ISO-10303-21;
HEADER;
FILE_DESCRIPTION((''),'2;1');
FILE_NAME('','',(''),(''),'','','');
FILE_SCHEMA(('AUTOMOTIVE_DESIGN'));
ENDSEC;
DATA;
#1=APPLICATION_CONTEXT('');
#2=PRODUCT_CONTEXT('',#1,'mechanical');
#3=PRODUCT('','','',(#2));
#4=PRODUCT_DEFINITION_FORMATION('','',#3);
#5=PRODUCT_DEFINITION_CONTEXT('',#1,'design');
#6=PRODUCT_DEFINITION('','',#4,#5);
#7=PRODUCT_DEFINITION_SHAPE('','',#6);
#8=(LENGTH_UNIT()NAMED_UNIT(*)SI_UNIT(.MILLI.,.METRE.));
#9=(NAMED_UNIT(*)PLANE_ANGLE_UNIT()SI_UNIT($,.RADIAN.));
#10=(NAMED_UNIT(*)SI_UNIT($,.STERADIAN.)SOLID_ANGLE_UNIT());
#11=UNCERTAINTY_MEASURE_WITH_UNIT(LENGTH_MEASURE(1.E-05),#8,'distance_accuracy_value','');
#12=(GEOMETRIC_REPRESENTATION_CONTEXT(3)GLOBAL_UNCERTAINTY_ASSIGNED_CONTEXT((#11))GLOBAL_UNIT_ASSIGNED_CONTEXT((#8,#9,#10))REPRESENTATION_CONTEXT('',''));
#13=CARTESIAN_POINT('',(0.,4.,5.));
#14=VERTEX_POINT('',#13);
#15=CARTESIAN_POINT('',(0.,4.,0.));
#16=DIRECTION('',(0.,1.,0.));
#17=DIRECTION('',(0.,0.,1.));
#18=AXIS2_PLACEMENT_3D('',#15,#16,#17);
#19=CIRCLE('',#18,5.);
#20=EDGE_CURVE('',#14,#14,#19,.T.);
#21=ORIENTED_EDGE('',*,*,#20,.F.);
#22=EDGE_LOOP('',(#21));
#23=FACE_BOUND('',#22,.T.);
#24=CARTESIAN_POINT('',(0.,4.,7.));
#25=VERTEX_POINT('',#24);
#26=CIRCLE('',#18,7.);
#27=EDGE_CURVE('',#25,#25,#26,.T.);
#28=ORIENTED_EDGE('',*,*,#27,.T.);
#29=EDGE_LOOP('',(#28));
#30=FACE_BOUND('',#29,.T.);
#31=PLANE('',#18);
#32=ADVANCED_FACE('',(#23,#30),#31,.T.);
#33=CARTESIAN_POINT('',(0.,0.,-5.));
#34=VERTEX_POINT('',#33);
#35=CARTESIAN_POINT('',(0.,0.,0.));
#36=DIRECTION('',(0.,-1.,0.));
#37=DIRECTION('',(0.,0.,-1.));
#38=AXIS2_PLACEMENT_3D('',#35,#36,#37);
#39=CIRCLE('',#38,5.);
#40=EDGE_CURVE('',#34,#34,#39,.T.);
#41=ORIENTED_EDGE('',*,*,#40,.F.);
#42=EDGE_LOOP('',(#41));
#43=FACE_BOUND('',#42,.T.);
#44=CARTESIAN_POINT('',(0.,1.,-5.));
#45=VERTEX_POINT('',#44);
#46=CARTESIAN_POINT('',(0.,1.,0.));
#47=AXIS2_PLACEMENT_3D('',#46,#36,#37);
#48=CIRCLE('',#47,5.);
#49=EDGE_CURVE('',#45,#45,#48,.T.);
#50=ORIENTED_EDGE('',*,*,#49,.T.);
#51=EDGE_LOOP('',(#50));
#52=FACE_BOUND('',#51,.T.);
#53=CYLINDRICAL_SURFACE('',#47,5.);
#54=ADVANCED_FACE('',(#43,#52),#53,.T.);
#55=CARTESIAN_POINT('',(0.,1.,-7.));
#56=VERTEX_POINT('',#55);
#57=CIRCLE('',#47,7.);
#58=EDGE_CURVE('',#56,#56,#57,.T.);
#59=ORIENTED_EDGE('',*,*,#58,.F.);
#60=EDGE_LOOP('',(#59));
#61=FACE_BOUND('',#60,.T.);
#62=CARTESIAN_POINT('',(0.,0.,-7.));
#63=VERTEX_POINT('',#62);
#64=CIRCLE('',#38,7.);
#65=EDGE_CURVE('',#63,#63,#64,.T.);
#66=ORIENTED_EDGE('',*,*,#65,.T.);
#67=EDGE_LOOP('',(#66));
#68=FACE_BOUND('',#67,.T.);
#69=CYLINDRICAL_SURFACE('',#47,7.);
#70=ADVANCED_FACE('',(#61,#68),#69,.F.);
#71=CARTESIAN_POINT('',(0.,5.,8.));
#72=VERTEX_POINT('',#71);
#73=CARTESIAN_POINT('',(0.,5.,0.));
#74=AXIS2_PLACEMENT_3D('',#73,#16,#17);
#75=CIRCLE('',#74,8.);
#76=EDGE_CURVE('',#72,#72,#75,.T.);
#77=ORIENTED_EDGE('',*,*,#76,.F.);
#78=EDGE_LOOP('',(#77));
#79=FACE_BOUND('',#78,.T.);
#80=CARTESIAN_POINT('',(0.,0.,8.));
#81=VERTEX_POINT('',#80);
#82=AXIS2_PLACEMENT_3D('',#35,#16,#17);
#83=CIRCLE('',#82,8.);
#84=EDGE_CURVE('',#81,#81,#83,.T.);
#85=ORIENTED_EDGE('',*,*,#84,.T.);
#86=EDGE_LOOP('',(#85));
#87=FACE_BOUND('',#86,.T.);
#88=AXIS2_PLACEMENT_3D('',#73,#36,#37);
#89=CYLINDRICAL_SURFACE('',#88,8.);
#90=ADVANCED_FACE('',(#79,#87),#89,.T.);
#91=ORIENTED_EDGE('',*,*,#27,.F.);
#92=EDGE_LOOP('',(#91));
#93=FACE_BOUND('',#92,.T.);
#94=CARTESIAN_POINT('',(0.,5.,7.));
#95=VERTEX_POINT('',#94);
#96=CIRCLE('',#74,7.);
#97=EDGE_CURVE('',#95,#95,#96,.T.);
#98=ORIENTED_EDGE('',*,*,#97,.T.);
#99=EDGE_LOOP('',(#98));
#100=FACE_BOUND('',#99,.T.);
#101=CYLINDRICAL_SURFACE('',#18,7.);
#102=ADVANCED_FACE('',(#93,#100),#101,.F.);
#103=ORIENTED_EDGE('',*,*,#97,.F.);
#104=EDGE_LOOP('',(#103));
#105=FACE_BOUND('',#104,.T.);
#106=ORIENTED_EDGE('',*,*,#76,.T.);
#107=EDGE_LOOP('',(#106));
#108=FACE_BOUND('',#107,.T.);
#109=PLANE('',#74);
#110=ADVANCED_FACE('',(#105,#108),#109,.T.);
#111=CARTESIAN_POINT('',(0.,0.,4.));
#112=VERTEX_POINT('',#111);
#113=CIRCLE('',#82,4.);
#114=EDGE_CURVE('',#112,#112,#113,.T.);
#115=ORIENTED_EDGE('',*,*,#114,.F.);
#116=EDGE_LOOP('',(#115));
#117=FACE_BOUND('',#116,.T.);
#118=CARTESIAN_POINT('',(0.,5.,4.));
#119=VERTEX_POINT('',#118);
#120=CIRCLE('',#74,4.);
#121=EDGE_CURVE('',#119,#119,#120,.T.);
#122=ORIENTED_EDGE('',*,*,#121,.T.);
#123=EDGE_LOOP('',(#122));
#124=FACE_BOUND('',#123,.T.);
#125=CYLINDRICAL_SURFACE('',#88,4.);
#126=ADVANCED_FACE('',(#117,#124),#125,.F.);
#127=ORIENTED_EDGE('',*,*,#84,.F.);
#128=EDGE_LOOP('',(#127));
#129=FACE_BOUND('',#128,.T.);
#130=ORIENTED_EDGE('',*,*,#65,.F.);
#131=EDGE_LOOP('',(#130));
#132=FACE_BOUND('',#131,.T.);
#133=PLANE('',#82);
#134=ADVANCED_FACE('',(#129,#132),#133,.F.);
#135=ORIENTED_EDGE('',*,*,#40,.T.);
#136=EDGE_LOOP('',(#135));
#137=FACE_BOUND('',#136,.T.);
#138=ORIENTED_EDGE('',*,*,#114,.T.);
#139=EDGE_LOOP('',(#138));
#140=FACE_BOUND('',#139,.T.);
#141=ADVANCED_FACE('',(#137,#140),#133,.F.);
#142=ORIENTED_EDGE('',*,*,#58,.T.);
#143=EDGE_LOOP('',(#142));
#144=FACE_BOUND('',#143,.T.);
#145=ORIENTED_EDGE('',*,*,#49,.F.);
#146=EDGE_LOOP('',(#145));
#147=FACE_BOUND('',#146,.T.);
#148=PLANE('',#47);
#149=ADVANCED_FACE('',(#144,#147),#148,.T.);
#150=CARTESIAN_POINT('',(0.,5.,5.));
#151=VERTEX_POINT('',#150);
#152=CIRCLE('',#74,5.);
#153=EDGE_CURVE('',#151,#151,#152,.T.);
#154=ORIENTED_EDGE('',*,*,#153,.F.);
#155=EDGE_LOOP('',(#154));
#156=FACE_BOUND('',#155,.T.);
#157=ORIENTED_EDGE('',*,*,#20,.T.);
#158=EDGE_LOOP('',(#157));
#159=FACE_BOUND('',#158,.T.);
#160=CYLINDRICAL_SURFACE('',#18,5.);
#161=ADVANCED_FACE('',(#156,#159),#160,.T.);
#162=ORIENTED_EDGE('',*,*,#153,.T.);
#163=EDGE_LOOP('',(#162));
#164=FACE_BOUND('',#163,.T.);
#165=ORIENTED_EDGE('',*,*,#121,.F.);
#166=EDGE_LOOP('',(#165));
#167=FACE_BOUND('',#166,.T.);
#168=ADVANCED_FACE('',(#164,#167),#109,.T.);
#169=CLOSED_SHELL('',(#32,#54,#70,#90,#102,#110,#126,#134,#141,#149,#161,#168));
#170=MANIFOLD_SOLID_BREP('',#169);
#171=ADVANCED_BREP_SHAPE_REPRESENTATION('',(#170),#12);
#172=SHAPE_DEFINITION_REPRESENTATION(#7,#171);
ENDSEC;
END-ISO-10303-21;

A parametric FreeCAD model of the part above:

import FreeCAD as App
import Part
import Sketcher
Q = App.Units.Quantity

doc = App.newDocument("Part")
body = doc.addObject("PartDesign::Body", "Body")

# Sketch on XZ plane
sketch1 = body.newObject("Sketcher::SketchObject", "Sketch")
sketch1.AttachmentSupport = (doc.getObject("XZ_Plane"), [""])
sketch1.MapMode = "FlatFace"
sketch1.addGeometry([
    Part.Circle(App.Vector(0, 0, 0), App.Vector(0, 0, 1), 8),
    Part.Circle(App.Vector(0, 0, 0), App.Vector(0, 0, 1), 4),
], False)
sketch1.addConstraint([
    Sketcher.Constraint("Coincident", 0, 3, -1, 1),
    Sketcher.Constraint("Coincident", 1, 3, -1, 1),
    Sketcher.Constraint("Diameter", 0, Q("16 mm")),
    Sketcher.Constraint("Diameter", 1, Q("8 mm")),
])
pad1 = body.newObject("PartDesign::Pad", "Pad")
pad1.Profile = sketch1
pad1.Length = 5
pad1.Reversed = True

# Sketch on XZ plane
sketch2 = body.newObject("Sketcher::SketchObject", "Sketch001")
sketch2.AttachmentSupport = (doc.getObject("XZ_Plane"), [""])
sketch2.MapMode = "FlatFace"
sketch2.AttachmentOffset = App.Placement(App.Vector(0, 0, -5), App.Rotation())
sketch2.addGeometry([
    Part.Circle(App.Vector(0, 0, 0), App.Vector(0, 0, 1), 7),
    Part.Circle(App.Vector(0, 0, 0), App.Vector(0, 0, 1), 5),
], False)
sketch2.addConstraint([
    Sketcher.Constraint("Coincident", 0, 3, -1, 1),
    Sketcher.Constraint("Coincident", 1, 3, -1, 1),
    Sketcher.Constraint("Diameter", 0, Q("14 mm")),
    Sketcher.Constraint("Diameter", 1, Q("10 mm")),
])
pocket1 = body.newObject("PartDesign::Pocket", "Pocket")
pocket1.Profile = sketch2
pocket1.Length = 1
pocket1.Reversed = True

# Sketch on XZ plane
sketch3 = body.newObject("Sketcher::SketchObject", "Sketch002")
sketch3.AttachmentSupport = (doc.getObject("XZ_Plane"), [""])
sketch3.MapMode = "FlatFace"
sketch3.AttachmentOffset = App.Placement(App.Vector(0, 0, -1), App.Rotation())
sketch3.addGeometry([
    Part.Circle(App.Vector(0, 0, 0), App.Vector(0, 0, 1), 7),
    Part.Circle(App.Vector(0, 0, 0), App.Vector(0, 0, 1), 5),
], False)
sketch3.addConstraint([
    Sketcher.Constraint("Coincident", 0, 3, -1, 1),
    Sketcher.Constraint("Coincident", 1, 3, -1, 1),
    Sketcher.Constraint("Diameter", 0, Q("14 mm")),
    Sketcher.Constraint("Diameter", 1, Q("10 mm")),
])
pocket2 = body.newObject("PartDesign::Pocket", "Pocket001")
pocket2.Profile = sketch3
pocket2.Length = 1
pocket2.Reversed = True

doc.recompute()
